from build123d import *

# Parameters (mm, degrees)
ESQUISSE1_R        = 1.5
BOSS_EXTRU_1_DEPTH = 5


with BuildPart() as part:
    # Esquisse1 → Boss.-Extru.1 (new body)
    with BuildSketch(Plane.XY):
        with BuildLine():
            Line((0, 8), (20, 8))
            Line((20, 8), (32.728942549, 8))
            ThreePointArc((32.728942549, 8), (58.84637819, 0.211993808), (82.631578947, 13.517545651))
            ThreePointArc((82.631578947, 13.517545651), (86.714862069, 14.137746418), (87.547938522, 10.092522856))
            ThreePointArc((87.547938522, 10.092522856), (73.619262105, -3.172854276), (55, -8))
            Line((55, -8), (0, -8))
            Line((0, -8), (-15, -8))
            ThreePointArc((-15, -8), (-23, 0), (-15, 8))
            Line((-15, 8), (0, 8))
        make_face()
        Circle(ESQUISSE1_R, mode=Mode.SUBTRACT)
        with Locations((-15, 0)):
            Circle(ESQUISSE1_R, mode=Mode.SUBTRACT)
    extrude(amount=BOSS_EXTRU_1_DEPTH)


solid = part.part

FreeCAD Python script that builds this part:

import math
import FreeCAD as App
import Part
import Sketcher

V = App.Vector

doc = App.newDocument("Part")
params = doc.addObject("Spreadsheet::Sheet", "Params")
for row, (alias, value) in enumerate([
    ("sketch1_diameter", "3 mm"),
    ("sketch1_radius", "35 mm"),
    ("sketch1_radius2", "8 mm"),
    ("sketch1_radius3", "3 mm"),
    ("sketch1_width", "70 mm"),
    ("pad1_length", "5 mm"),
], start=1):
    params.set(f"A{row}", alias)
    params.set(f"B{row}", "=" + value)
    params.setAlias(f"B{row}", alias)

body = doc.addObject("PartDesign::Body", "Body")

sketch1 = body.newObject("Sketcher::SketchObject", "Sketch")
sketch1.AttachmentSupport = (doc.getObject("XY_Plane"), [""])
sketch1.MapMode = "FlatFace"
sketch1.addGeometry([
    Part.ArcOfCircle(Part.Circle(V(55, 35, 0), V(0, 0, 1), 35), math.radians(-129.517653), math.radians(-37.863646)),
    Part.LineSegment(V(32.728943, 8, 0), V(-15, 8, 0)),
    Part.ArcOfCircle(Part.Circle(V(-15, 0, 0), V(0, 0, 1), 8), math.radians(90), math.radians(270)),
    Part.LineSegment(V(-15, -8, 0), V(55, -8, 0)),
    Part.ArcOfCircle(Part.Circle(V(55, 30.322673, 0), V(0, 0, 1), 38.322673), math.radians(-90), math.radians(-31.862991)),
    Part.ArcOfCircle(Part.Circle(V(85, 11.676192, 0), V(0, 0, 1), 3), math.radians(-31.862991), math.radians(142.136354)),
    Part.Circle(V(0, 0, 0), V(0, 0, 1), 1.5),
    Part.Circle(V(-15, 0, 0), V(0, 0, 1), 1.5),
], False)
sketch1.addConstraint([
    Sketcher.Constraint("Coincident", 0, 1, 1, 1),
    Sketcher.Constraint("Tangent", 1, 2, 2, 1),
    Sketcher.Constraint("Tangent", 2, 2, 3, 1),
    Sketcher.Constraint("Tangent", 3, 2, 4, 1),
    Sketcher.Constraint("Tangent", 4, 2, 5, 1),
    Sketcher.Constraint("Tangent", 5, 2, 0, 2),
    Sketcher.Constraint("Horizontal", 1),
    Sketcher.Constraint("Horizontal", 3),
    Sketcher.Constraint("Coincident", 6, 3, -1, 1),
    Sketcher.Constraint("Coincident", 7, 3, 2, 3),
    Sketcher.Constraint("Equal", 6, 7),
    Sketcher.Constraint("PointOnObject", 2, 3, -1),
    Sketcher.Constraint("Vertical", 0, 3, 4, 3),
    Sketcher.Constraint("Diameter", 6, 3.0),
    Sketcher.Constraint("Radius", 0, 35.0),
    Sketcher.Constraint("Radius", 2, 8.0),
    Sketcher.Constraint("Radius", 5, 3.0),
    Sketcher.Constraint("DistanceX", 3, 1, 3, 2, 70.0),
    Sketcher.Constraint("DistanceX", -1, 1, 0, 3, 55.0),
    Sketcher.Constraint("DistanceY", -1, 1, 0, 3, 35.0),
    Sketcher.Constraint("DistanceX", -1, 1, 5, 3, 85.0),
])
sketch1.setExpression("Constraints[13]", "Params.sketch1_diameter")
sketch1.setExpression("Constraints[14]", "Params.sketch1_radius")
sketch1.setExpression("Constraints[15]", "Params.sketch1_radius2")
sketch1.setExpression("Constraints[16]", "Params.sketch1_radius3")
sketch1.setExpression("Constraints[17]", "Params.sketch1_width")
pad1 = body.newObject("PartDesign::Pad", "Pad")
pad1.Profile = sketch1
pad1.setExpression("Length", "Params.pad1_length")

doc.recompute()
